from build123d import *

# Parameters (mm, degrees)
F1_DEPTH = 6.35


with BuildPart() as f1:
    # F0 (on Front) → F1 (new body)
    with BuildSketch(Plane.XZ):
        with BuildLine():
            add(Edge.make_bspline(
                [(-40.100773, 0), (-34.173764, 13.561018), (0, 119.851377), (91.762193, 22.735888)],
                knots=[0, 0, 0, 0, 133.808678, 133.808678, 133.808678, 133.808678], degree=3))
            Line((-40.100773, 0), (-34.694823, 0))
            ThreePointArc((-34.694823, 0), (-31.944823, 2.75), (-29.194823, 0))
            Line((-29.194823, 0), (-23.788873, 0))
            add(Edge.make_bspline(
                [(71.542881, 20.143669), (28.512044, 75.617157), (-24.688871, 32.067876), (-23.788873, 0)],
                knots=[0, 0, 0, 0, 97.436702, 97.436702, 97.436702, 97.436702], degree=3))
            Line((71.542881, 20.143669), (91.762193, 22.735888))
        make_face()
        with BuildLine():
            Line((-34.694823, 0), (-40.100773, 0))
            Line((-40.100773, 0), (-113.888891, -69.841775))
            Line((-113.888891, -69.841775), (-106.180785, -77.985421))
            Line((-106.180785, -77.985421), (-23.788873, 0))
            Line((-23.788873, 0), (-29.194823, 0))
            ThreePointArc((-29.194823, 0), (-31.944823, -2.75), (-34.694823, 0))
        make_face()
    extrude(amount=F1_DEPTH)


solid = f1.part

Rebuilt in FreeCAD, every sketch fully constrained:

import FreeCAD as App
import Part
import Sketcher

V = App.Vector
Q = App.Units.Quantity

doc = App.newDocument("Part")
body = doc.addObject("PartDesign::Body", "Body")

# Sketch on XZ plane
sketch1 = doc.addObject("Sketcher::SketchObject", "Sketch")
body.addObject(sketch1)
sketch1.AttachmentSupport = (doc.XZ_Plane, [""])
sketch1.MapMode = "FlatFace"
sketch1.addGeometry([
    Part.BSplineCurve([V(-40.100773, 0, 0), V(-34.173764, 13.561018, 0), V(0, 119.851377, 0), V(91.762193, 22.735888, 0)], [4, 4], [0, 133.808678], False, 3, [1, 1, 1, 1], False),  # 0
    Part.LineSegment(V(-40.100773, 0, 0), V(-113.888891, -69.841775, 0)),  # 1
    Part.LineSegment(V(-113.888891, -69.841775, 0), V(-106.180785, -77.985421, 0)),  # 2
    Part.LineSegment(V(-106.180785, -77.985421, 0), V(-23.788873, 0, 0)),  # 3
    Part.BSplineCurve([V(71.542881, 20.143669, 0), V(28.512044, 75.617157, 0), V(-24.688871, 32.067876, 0), V(-23.788873, 0, 0)], [4, 4], [0, 97.436702], False, 3, [1, 1, 1, 1], False),  # 4
    Part.LineSegment(V(71.542881, 20.143669, 0), V(91.762193, 22.735888, 0)),  # 5
    Part.Circle(V(-31.944823, 0, 0), V(0, 0, 1), 2.75),  # 6
], False)
sketch1.addConstraint([
    Sketcher.Constraint("Block", 0),
    Sketcher.Constraint("Block", 4),
    Sketcher.Constraint("Coincident", 0, 1, 1, 1),
    Sketcher.Constraint("Coincident", 1, 2, 2, 1),
    Sketcher.Constraint("Coincident", 2, 2, 3, 1),
    Sketcher.Constraint("Coincident", 3, 2, 4, 2),
    Sketcher.Constraint("Coincident", 4, 1, 5, 1),
    Sketcher.Constraint("Coincident", 5, 2, 0, 2),
    Sketcher.Constraint("PointOnObject", 6, 3, -1),
    Sketcher.Constraint("Distance", 1, Q("4 in")),
    Sketcher.Constraint("Diameter", 6, Q("5.5 mm")),
    Sketcher.Constraint("Distance", 2, Q("11.213111 mm")),
    Sketcher.Constraint("DistanceX", 1, 2, -1, 1, Q("113.888891 mm")),
    Sketcher.Constraint("DistanceY", 2, 2, -1, 1, Q("77.985421 mm")),
    Sketcher.Constraint("DistanceX", 1, 2, 6, 3, Q("81.944068 mm")),
])
pad1 = doc.addObject("PartDesign::Pad", "Pad")
body.addObject(pad1)
pad1.Profile = sketch1
pad1.Length = Q("0.25 in")

doc.recompute()
